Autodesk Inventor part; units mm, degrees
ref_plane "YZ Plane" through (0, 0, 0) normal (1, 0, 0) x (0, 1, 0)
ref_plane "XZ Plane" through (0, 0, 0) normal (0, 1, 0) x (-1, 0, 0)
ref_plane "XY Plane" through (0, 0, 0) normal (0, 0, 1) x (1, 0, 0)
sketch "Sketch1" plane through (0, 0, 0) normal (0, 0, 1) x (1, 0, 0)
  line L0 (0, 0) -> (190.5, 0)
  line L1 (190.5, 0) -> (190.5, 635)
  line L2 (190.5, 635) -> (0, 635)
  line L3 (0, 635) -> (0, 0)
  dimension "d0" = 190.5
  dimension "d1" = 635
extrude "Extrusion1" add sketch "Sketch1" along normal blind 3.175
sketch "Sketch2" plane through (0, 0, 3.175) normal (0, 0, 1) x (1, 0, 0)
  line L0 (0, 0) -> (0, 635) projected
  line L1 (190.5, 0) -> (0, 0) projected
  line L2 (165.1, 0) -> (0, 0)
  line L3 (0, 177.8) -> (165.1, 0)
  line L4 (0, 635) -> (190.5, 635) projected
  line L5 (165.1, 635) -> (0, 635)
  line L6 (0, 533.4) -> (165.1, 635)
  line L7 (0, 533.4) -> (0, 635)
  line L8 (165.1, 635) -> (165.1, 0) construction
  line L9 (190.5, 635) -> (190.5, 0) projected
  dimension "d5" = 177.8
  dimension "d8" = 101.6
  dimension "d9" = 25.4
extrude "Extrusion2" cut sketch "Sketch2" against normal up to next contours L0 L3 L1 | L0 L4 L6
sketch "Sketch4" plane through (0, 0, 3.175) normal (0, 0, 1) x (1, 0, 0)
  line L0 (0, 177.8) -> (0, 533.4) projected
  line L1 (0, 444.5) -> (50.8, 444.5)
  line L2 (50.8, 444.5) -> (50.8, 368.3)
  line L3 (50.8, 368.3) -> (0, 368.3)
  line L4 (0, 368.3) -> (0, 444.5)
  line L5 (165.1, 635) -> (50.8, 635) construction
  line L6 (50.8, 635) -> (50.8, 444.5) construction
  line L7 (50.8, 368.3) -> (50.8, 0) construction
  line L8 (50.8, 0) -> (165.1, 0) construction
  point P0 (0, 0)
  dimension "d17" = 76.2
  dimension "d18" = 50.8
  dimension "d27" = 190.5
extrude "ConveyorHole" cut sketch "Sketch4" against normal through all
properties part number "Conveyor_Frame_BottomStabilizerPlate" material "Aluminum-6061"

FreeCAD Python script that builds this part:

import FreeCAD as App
import Part
import Sketcher

V = App.Vector
Q = App.Units.Quantity


def add_polygon(sketch, points):
    """Adds a closed chain of lines whose ends are joined by coincident constraints."""
    first, n = sketch.GeometryCount, len(points)
    for a, b in zip(points, points[1:] + points[:1]):
        sketch.addGeometry(Part.LineSegment(App.Vector(*a, 0), App.Vector(*b, 0)), False)
    for i in range(n):
        sketch.addConstraint(Sketcher.Constraint("Coincident", first + i, 2, first + (i + 1) % n, 1))

doc = App.newDocument("Part")
body = doc.addObject("PartDesign::Body", "Body")

# Sketch on XY plane
sketch1 = doc.addObject("Sketcher::SketchObject", "Sketch")
body.addObject(sketch1)
sketch1.AttachmentSupport = (doc.XY_Plane, [""])
sketch1.MapMode = "FlatFace"
add_polygon(sketch1, [(0, 635), (0, 0), (190, 0), (190, 635)])  # lines 0-3
sketch1.addConstraint(Sketcher.Constraint("Vertical", 0))
sketch1.addConstraint(Sketcher.Constraint("Horizontal", 1))
sketch1.addConstraint(Sketcher.Constraint("Vertical", 2))
sketch1.addConstraint(Sketcher.Constraint("Horizontal", 3))
sketch1.addConstraint(Sketcher.Constraint("Coincident", 0, 2, -1, 1))
sketch1.addConstraint(Sketcher.Constraint("DistanceY", 0, 2, 0, 1, Q("25 in")))
sketch1.addConstraint(Sketcher.Constraint("DistanceX", 1, 1, 1, 2, Q("7.5 in")))
pad1 = doc.addObject("PartDesign::Pad", "Pad")
body.addObject(pad1)
pad1.Profile = sketch1
pad1.Length = Q("0.125 in")

# Sketch on XY plane
sketch2 = doc.addObject("Sketcher::SketchObject", "Sketch001")
body.addObject(sketch2)
sketch2.AttachmentSupport = (doc.XY_Plane, [""])
sketch2.MapMode = "FlatFace"
sketch2.AttachmentOffset = App.Placement(V(0, 0, 0.125 * 25.4), App.Rotation())
add_polygon(sketch2, [(0, 178), (0, 0), (165, 0)])  # lines 0-2
add_polygon(sketch2, [(0, 635), (0, 533), (165, 635)])  # lines 3-5
sketch2.addConstraint(Sketcher.Constraint("Vertical", 0))
sketch2.addConstraint(Sketcher.Constraint("Horizontal", 1))
sketch2.addConstraint(Sketcher.Constraint("Vertical", 3))
sketch2.addConstraint(Sketcher.Constraint("Horizontal", 5))
sketch2.addConstraint(Sketcher.Constraint("Coincident", 0, 2, -1, 1))
sketch2.addConstraint(Sketcher.Constraint("PointOnObject", 3, 2, -2))
sketch2.addConstraint(Sketcher.Constraint("Vertical", 1, 2, 4, 2))
sketch2.addConstraint(Sketcher.Constraint("DistanceY", 0, 2, 0, 1, Q("7 in")))
sketch2.addConstraint(Sketcher.Constraint("DistanceY", 3, 2, 3, 1, Q("4 in")))
sketch2.addConstraint(Sketcher.Constraint("DistanceX", 1, 1, 1, 2, Q("6.5 in")))
sketch2.addConstraint(Sketcher.Constraint("DistanceY", -1, 1, 3, 2, Q("21 in")))
pocket1 = doc.addObject("PartDesign::Pocket", "Pocket")
body.addObject(pocket1)
pocket1.Profile = sketch2
pocket1.Type = "UpToFirst"

# Sketch on XY plane
sketch3 = doc.addObject("Sketcher::SketchObject", "Sketch002")
body.addObject(sketch3)
sketch3.AttachmentSupport = (doc.XY_Plane, [""])
sketch3.MapMode = "FlatFace"
sketch3.AttachmentOffset = App.Placement(V(0, 0, 0.125 * 25.4), App.Rotation())
add_polygon(sketch3, [(0, 444), (0, 368), (51, 368), (51, 444)])  # lines 0-3
sketch3.addConstraint(Sketcher.Constraint("Vertical", 0))
sketch3.addConstraint(Sketcher.Constraint("Horizontal", 1))
sketch3.addConstraint(Sketcher.Constraint("Vertical", 2))
sketch3.addConstraint(Sketcher.Constraint("Horizontal", 3))
sketch3.addConstraint(Sketcher.Constraint("PointOnObject", 0, 2, -2))
sketch3.addConstraint(Sketcher.Constraint("DistanceX", 1, 1, 1, 2, Q("2 in")))
sketch3.addConstraint(Sketcher.Constraint("DistanceY", 0, 2, 0, 1, Q("3 in")))
sketch3.addConstraint(Sketcher.Constraint("DistanceY", -1, 1, 0, 2, Q("14.5 in")))
pocket2 = doc.addObject("PartDesign::Pocket", "Pocket001")
body.addObject(pocket2)
pocket2.Profile = sketch3
pocket2.Type = "ThroughAll"

doc.recompute()
